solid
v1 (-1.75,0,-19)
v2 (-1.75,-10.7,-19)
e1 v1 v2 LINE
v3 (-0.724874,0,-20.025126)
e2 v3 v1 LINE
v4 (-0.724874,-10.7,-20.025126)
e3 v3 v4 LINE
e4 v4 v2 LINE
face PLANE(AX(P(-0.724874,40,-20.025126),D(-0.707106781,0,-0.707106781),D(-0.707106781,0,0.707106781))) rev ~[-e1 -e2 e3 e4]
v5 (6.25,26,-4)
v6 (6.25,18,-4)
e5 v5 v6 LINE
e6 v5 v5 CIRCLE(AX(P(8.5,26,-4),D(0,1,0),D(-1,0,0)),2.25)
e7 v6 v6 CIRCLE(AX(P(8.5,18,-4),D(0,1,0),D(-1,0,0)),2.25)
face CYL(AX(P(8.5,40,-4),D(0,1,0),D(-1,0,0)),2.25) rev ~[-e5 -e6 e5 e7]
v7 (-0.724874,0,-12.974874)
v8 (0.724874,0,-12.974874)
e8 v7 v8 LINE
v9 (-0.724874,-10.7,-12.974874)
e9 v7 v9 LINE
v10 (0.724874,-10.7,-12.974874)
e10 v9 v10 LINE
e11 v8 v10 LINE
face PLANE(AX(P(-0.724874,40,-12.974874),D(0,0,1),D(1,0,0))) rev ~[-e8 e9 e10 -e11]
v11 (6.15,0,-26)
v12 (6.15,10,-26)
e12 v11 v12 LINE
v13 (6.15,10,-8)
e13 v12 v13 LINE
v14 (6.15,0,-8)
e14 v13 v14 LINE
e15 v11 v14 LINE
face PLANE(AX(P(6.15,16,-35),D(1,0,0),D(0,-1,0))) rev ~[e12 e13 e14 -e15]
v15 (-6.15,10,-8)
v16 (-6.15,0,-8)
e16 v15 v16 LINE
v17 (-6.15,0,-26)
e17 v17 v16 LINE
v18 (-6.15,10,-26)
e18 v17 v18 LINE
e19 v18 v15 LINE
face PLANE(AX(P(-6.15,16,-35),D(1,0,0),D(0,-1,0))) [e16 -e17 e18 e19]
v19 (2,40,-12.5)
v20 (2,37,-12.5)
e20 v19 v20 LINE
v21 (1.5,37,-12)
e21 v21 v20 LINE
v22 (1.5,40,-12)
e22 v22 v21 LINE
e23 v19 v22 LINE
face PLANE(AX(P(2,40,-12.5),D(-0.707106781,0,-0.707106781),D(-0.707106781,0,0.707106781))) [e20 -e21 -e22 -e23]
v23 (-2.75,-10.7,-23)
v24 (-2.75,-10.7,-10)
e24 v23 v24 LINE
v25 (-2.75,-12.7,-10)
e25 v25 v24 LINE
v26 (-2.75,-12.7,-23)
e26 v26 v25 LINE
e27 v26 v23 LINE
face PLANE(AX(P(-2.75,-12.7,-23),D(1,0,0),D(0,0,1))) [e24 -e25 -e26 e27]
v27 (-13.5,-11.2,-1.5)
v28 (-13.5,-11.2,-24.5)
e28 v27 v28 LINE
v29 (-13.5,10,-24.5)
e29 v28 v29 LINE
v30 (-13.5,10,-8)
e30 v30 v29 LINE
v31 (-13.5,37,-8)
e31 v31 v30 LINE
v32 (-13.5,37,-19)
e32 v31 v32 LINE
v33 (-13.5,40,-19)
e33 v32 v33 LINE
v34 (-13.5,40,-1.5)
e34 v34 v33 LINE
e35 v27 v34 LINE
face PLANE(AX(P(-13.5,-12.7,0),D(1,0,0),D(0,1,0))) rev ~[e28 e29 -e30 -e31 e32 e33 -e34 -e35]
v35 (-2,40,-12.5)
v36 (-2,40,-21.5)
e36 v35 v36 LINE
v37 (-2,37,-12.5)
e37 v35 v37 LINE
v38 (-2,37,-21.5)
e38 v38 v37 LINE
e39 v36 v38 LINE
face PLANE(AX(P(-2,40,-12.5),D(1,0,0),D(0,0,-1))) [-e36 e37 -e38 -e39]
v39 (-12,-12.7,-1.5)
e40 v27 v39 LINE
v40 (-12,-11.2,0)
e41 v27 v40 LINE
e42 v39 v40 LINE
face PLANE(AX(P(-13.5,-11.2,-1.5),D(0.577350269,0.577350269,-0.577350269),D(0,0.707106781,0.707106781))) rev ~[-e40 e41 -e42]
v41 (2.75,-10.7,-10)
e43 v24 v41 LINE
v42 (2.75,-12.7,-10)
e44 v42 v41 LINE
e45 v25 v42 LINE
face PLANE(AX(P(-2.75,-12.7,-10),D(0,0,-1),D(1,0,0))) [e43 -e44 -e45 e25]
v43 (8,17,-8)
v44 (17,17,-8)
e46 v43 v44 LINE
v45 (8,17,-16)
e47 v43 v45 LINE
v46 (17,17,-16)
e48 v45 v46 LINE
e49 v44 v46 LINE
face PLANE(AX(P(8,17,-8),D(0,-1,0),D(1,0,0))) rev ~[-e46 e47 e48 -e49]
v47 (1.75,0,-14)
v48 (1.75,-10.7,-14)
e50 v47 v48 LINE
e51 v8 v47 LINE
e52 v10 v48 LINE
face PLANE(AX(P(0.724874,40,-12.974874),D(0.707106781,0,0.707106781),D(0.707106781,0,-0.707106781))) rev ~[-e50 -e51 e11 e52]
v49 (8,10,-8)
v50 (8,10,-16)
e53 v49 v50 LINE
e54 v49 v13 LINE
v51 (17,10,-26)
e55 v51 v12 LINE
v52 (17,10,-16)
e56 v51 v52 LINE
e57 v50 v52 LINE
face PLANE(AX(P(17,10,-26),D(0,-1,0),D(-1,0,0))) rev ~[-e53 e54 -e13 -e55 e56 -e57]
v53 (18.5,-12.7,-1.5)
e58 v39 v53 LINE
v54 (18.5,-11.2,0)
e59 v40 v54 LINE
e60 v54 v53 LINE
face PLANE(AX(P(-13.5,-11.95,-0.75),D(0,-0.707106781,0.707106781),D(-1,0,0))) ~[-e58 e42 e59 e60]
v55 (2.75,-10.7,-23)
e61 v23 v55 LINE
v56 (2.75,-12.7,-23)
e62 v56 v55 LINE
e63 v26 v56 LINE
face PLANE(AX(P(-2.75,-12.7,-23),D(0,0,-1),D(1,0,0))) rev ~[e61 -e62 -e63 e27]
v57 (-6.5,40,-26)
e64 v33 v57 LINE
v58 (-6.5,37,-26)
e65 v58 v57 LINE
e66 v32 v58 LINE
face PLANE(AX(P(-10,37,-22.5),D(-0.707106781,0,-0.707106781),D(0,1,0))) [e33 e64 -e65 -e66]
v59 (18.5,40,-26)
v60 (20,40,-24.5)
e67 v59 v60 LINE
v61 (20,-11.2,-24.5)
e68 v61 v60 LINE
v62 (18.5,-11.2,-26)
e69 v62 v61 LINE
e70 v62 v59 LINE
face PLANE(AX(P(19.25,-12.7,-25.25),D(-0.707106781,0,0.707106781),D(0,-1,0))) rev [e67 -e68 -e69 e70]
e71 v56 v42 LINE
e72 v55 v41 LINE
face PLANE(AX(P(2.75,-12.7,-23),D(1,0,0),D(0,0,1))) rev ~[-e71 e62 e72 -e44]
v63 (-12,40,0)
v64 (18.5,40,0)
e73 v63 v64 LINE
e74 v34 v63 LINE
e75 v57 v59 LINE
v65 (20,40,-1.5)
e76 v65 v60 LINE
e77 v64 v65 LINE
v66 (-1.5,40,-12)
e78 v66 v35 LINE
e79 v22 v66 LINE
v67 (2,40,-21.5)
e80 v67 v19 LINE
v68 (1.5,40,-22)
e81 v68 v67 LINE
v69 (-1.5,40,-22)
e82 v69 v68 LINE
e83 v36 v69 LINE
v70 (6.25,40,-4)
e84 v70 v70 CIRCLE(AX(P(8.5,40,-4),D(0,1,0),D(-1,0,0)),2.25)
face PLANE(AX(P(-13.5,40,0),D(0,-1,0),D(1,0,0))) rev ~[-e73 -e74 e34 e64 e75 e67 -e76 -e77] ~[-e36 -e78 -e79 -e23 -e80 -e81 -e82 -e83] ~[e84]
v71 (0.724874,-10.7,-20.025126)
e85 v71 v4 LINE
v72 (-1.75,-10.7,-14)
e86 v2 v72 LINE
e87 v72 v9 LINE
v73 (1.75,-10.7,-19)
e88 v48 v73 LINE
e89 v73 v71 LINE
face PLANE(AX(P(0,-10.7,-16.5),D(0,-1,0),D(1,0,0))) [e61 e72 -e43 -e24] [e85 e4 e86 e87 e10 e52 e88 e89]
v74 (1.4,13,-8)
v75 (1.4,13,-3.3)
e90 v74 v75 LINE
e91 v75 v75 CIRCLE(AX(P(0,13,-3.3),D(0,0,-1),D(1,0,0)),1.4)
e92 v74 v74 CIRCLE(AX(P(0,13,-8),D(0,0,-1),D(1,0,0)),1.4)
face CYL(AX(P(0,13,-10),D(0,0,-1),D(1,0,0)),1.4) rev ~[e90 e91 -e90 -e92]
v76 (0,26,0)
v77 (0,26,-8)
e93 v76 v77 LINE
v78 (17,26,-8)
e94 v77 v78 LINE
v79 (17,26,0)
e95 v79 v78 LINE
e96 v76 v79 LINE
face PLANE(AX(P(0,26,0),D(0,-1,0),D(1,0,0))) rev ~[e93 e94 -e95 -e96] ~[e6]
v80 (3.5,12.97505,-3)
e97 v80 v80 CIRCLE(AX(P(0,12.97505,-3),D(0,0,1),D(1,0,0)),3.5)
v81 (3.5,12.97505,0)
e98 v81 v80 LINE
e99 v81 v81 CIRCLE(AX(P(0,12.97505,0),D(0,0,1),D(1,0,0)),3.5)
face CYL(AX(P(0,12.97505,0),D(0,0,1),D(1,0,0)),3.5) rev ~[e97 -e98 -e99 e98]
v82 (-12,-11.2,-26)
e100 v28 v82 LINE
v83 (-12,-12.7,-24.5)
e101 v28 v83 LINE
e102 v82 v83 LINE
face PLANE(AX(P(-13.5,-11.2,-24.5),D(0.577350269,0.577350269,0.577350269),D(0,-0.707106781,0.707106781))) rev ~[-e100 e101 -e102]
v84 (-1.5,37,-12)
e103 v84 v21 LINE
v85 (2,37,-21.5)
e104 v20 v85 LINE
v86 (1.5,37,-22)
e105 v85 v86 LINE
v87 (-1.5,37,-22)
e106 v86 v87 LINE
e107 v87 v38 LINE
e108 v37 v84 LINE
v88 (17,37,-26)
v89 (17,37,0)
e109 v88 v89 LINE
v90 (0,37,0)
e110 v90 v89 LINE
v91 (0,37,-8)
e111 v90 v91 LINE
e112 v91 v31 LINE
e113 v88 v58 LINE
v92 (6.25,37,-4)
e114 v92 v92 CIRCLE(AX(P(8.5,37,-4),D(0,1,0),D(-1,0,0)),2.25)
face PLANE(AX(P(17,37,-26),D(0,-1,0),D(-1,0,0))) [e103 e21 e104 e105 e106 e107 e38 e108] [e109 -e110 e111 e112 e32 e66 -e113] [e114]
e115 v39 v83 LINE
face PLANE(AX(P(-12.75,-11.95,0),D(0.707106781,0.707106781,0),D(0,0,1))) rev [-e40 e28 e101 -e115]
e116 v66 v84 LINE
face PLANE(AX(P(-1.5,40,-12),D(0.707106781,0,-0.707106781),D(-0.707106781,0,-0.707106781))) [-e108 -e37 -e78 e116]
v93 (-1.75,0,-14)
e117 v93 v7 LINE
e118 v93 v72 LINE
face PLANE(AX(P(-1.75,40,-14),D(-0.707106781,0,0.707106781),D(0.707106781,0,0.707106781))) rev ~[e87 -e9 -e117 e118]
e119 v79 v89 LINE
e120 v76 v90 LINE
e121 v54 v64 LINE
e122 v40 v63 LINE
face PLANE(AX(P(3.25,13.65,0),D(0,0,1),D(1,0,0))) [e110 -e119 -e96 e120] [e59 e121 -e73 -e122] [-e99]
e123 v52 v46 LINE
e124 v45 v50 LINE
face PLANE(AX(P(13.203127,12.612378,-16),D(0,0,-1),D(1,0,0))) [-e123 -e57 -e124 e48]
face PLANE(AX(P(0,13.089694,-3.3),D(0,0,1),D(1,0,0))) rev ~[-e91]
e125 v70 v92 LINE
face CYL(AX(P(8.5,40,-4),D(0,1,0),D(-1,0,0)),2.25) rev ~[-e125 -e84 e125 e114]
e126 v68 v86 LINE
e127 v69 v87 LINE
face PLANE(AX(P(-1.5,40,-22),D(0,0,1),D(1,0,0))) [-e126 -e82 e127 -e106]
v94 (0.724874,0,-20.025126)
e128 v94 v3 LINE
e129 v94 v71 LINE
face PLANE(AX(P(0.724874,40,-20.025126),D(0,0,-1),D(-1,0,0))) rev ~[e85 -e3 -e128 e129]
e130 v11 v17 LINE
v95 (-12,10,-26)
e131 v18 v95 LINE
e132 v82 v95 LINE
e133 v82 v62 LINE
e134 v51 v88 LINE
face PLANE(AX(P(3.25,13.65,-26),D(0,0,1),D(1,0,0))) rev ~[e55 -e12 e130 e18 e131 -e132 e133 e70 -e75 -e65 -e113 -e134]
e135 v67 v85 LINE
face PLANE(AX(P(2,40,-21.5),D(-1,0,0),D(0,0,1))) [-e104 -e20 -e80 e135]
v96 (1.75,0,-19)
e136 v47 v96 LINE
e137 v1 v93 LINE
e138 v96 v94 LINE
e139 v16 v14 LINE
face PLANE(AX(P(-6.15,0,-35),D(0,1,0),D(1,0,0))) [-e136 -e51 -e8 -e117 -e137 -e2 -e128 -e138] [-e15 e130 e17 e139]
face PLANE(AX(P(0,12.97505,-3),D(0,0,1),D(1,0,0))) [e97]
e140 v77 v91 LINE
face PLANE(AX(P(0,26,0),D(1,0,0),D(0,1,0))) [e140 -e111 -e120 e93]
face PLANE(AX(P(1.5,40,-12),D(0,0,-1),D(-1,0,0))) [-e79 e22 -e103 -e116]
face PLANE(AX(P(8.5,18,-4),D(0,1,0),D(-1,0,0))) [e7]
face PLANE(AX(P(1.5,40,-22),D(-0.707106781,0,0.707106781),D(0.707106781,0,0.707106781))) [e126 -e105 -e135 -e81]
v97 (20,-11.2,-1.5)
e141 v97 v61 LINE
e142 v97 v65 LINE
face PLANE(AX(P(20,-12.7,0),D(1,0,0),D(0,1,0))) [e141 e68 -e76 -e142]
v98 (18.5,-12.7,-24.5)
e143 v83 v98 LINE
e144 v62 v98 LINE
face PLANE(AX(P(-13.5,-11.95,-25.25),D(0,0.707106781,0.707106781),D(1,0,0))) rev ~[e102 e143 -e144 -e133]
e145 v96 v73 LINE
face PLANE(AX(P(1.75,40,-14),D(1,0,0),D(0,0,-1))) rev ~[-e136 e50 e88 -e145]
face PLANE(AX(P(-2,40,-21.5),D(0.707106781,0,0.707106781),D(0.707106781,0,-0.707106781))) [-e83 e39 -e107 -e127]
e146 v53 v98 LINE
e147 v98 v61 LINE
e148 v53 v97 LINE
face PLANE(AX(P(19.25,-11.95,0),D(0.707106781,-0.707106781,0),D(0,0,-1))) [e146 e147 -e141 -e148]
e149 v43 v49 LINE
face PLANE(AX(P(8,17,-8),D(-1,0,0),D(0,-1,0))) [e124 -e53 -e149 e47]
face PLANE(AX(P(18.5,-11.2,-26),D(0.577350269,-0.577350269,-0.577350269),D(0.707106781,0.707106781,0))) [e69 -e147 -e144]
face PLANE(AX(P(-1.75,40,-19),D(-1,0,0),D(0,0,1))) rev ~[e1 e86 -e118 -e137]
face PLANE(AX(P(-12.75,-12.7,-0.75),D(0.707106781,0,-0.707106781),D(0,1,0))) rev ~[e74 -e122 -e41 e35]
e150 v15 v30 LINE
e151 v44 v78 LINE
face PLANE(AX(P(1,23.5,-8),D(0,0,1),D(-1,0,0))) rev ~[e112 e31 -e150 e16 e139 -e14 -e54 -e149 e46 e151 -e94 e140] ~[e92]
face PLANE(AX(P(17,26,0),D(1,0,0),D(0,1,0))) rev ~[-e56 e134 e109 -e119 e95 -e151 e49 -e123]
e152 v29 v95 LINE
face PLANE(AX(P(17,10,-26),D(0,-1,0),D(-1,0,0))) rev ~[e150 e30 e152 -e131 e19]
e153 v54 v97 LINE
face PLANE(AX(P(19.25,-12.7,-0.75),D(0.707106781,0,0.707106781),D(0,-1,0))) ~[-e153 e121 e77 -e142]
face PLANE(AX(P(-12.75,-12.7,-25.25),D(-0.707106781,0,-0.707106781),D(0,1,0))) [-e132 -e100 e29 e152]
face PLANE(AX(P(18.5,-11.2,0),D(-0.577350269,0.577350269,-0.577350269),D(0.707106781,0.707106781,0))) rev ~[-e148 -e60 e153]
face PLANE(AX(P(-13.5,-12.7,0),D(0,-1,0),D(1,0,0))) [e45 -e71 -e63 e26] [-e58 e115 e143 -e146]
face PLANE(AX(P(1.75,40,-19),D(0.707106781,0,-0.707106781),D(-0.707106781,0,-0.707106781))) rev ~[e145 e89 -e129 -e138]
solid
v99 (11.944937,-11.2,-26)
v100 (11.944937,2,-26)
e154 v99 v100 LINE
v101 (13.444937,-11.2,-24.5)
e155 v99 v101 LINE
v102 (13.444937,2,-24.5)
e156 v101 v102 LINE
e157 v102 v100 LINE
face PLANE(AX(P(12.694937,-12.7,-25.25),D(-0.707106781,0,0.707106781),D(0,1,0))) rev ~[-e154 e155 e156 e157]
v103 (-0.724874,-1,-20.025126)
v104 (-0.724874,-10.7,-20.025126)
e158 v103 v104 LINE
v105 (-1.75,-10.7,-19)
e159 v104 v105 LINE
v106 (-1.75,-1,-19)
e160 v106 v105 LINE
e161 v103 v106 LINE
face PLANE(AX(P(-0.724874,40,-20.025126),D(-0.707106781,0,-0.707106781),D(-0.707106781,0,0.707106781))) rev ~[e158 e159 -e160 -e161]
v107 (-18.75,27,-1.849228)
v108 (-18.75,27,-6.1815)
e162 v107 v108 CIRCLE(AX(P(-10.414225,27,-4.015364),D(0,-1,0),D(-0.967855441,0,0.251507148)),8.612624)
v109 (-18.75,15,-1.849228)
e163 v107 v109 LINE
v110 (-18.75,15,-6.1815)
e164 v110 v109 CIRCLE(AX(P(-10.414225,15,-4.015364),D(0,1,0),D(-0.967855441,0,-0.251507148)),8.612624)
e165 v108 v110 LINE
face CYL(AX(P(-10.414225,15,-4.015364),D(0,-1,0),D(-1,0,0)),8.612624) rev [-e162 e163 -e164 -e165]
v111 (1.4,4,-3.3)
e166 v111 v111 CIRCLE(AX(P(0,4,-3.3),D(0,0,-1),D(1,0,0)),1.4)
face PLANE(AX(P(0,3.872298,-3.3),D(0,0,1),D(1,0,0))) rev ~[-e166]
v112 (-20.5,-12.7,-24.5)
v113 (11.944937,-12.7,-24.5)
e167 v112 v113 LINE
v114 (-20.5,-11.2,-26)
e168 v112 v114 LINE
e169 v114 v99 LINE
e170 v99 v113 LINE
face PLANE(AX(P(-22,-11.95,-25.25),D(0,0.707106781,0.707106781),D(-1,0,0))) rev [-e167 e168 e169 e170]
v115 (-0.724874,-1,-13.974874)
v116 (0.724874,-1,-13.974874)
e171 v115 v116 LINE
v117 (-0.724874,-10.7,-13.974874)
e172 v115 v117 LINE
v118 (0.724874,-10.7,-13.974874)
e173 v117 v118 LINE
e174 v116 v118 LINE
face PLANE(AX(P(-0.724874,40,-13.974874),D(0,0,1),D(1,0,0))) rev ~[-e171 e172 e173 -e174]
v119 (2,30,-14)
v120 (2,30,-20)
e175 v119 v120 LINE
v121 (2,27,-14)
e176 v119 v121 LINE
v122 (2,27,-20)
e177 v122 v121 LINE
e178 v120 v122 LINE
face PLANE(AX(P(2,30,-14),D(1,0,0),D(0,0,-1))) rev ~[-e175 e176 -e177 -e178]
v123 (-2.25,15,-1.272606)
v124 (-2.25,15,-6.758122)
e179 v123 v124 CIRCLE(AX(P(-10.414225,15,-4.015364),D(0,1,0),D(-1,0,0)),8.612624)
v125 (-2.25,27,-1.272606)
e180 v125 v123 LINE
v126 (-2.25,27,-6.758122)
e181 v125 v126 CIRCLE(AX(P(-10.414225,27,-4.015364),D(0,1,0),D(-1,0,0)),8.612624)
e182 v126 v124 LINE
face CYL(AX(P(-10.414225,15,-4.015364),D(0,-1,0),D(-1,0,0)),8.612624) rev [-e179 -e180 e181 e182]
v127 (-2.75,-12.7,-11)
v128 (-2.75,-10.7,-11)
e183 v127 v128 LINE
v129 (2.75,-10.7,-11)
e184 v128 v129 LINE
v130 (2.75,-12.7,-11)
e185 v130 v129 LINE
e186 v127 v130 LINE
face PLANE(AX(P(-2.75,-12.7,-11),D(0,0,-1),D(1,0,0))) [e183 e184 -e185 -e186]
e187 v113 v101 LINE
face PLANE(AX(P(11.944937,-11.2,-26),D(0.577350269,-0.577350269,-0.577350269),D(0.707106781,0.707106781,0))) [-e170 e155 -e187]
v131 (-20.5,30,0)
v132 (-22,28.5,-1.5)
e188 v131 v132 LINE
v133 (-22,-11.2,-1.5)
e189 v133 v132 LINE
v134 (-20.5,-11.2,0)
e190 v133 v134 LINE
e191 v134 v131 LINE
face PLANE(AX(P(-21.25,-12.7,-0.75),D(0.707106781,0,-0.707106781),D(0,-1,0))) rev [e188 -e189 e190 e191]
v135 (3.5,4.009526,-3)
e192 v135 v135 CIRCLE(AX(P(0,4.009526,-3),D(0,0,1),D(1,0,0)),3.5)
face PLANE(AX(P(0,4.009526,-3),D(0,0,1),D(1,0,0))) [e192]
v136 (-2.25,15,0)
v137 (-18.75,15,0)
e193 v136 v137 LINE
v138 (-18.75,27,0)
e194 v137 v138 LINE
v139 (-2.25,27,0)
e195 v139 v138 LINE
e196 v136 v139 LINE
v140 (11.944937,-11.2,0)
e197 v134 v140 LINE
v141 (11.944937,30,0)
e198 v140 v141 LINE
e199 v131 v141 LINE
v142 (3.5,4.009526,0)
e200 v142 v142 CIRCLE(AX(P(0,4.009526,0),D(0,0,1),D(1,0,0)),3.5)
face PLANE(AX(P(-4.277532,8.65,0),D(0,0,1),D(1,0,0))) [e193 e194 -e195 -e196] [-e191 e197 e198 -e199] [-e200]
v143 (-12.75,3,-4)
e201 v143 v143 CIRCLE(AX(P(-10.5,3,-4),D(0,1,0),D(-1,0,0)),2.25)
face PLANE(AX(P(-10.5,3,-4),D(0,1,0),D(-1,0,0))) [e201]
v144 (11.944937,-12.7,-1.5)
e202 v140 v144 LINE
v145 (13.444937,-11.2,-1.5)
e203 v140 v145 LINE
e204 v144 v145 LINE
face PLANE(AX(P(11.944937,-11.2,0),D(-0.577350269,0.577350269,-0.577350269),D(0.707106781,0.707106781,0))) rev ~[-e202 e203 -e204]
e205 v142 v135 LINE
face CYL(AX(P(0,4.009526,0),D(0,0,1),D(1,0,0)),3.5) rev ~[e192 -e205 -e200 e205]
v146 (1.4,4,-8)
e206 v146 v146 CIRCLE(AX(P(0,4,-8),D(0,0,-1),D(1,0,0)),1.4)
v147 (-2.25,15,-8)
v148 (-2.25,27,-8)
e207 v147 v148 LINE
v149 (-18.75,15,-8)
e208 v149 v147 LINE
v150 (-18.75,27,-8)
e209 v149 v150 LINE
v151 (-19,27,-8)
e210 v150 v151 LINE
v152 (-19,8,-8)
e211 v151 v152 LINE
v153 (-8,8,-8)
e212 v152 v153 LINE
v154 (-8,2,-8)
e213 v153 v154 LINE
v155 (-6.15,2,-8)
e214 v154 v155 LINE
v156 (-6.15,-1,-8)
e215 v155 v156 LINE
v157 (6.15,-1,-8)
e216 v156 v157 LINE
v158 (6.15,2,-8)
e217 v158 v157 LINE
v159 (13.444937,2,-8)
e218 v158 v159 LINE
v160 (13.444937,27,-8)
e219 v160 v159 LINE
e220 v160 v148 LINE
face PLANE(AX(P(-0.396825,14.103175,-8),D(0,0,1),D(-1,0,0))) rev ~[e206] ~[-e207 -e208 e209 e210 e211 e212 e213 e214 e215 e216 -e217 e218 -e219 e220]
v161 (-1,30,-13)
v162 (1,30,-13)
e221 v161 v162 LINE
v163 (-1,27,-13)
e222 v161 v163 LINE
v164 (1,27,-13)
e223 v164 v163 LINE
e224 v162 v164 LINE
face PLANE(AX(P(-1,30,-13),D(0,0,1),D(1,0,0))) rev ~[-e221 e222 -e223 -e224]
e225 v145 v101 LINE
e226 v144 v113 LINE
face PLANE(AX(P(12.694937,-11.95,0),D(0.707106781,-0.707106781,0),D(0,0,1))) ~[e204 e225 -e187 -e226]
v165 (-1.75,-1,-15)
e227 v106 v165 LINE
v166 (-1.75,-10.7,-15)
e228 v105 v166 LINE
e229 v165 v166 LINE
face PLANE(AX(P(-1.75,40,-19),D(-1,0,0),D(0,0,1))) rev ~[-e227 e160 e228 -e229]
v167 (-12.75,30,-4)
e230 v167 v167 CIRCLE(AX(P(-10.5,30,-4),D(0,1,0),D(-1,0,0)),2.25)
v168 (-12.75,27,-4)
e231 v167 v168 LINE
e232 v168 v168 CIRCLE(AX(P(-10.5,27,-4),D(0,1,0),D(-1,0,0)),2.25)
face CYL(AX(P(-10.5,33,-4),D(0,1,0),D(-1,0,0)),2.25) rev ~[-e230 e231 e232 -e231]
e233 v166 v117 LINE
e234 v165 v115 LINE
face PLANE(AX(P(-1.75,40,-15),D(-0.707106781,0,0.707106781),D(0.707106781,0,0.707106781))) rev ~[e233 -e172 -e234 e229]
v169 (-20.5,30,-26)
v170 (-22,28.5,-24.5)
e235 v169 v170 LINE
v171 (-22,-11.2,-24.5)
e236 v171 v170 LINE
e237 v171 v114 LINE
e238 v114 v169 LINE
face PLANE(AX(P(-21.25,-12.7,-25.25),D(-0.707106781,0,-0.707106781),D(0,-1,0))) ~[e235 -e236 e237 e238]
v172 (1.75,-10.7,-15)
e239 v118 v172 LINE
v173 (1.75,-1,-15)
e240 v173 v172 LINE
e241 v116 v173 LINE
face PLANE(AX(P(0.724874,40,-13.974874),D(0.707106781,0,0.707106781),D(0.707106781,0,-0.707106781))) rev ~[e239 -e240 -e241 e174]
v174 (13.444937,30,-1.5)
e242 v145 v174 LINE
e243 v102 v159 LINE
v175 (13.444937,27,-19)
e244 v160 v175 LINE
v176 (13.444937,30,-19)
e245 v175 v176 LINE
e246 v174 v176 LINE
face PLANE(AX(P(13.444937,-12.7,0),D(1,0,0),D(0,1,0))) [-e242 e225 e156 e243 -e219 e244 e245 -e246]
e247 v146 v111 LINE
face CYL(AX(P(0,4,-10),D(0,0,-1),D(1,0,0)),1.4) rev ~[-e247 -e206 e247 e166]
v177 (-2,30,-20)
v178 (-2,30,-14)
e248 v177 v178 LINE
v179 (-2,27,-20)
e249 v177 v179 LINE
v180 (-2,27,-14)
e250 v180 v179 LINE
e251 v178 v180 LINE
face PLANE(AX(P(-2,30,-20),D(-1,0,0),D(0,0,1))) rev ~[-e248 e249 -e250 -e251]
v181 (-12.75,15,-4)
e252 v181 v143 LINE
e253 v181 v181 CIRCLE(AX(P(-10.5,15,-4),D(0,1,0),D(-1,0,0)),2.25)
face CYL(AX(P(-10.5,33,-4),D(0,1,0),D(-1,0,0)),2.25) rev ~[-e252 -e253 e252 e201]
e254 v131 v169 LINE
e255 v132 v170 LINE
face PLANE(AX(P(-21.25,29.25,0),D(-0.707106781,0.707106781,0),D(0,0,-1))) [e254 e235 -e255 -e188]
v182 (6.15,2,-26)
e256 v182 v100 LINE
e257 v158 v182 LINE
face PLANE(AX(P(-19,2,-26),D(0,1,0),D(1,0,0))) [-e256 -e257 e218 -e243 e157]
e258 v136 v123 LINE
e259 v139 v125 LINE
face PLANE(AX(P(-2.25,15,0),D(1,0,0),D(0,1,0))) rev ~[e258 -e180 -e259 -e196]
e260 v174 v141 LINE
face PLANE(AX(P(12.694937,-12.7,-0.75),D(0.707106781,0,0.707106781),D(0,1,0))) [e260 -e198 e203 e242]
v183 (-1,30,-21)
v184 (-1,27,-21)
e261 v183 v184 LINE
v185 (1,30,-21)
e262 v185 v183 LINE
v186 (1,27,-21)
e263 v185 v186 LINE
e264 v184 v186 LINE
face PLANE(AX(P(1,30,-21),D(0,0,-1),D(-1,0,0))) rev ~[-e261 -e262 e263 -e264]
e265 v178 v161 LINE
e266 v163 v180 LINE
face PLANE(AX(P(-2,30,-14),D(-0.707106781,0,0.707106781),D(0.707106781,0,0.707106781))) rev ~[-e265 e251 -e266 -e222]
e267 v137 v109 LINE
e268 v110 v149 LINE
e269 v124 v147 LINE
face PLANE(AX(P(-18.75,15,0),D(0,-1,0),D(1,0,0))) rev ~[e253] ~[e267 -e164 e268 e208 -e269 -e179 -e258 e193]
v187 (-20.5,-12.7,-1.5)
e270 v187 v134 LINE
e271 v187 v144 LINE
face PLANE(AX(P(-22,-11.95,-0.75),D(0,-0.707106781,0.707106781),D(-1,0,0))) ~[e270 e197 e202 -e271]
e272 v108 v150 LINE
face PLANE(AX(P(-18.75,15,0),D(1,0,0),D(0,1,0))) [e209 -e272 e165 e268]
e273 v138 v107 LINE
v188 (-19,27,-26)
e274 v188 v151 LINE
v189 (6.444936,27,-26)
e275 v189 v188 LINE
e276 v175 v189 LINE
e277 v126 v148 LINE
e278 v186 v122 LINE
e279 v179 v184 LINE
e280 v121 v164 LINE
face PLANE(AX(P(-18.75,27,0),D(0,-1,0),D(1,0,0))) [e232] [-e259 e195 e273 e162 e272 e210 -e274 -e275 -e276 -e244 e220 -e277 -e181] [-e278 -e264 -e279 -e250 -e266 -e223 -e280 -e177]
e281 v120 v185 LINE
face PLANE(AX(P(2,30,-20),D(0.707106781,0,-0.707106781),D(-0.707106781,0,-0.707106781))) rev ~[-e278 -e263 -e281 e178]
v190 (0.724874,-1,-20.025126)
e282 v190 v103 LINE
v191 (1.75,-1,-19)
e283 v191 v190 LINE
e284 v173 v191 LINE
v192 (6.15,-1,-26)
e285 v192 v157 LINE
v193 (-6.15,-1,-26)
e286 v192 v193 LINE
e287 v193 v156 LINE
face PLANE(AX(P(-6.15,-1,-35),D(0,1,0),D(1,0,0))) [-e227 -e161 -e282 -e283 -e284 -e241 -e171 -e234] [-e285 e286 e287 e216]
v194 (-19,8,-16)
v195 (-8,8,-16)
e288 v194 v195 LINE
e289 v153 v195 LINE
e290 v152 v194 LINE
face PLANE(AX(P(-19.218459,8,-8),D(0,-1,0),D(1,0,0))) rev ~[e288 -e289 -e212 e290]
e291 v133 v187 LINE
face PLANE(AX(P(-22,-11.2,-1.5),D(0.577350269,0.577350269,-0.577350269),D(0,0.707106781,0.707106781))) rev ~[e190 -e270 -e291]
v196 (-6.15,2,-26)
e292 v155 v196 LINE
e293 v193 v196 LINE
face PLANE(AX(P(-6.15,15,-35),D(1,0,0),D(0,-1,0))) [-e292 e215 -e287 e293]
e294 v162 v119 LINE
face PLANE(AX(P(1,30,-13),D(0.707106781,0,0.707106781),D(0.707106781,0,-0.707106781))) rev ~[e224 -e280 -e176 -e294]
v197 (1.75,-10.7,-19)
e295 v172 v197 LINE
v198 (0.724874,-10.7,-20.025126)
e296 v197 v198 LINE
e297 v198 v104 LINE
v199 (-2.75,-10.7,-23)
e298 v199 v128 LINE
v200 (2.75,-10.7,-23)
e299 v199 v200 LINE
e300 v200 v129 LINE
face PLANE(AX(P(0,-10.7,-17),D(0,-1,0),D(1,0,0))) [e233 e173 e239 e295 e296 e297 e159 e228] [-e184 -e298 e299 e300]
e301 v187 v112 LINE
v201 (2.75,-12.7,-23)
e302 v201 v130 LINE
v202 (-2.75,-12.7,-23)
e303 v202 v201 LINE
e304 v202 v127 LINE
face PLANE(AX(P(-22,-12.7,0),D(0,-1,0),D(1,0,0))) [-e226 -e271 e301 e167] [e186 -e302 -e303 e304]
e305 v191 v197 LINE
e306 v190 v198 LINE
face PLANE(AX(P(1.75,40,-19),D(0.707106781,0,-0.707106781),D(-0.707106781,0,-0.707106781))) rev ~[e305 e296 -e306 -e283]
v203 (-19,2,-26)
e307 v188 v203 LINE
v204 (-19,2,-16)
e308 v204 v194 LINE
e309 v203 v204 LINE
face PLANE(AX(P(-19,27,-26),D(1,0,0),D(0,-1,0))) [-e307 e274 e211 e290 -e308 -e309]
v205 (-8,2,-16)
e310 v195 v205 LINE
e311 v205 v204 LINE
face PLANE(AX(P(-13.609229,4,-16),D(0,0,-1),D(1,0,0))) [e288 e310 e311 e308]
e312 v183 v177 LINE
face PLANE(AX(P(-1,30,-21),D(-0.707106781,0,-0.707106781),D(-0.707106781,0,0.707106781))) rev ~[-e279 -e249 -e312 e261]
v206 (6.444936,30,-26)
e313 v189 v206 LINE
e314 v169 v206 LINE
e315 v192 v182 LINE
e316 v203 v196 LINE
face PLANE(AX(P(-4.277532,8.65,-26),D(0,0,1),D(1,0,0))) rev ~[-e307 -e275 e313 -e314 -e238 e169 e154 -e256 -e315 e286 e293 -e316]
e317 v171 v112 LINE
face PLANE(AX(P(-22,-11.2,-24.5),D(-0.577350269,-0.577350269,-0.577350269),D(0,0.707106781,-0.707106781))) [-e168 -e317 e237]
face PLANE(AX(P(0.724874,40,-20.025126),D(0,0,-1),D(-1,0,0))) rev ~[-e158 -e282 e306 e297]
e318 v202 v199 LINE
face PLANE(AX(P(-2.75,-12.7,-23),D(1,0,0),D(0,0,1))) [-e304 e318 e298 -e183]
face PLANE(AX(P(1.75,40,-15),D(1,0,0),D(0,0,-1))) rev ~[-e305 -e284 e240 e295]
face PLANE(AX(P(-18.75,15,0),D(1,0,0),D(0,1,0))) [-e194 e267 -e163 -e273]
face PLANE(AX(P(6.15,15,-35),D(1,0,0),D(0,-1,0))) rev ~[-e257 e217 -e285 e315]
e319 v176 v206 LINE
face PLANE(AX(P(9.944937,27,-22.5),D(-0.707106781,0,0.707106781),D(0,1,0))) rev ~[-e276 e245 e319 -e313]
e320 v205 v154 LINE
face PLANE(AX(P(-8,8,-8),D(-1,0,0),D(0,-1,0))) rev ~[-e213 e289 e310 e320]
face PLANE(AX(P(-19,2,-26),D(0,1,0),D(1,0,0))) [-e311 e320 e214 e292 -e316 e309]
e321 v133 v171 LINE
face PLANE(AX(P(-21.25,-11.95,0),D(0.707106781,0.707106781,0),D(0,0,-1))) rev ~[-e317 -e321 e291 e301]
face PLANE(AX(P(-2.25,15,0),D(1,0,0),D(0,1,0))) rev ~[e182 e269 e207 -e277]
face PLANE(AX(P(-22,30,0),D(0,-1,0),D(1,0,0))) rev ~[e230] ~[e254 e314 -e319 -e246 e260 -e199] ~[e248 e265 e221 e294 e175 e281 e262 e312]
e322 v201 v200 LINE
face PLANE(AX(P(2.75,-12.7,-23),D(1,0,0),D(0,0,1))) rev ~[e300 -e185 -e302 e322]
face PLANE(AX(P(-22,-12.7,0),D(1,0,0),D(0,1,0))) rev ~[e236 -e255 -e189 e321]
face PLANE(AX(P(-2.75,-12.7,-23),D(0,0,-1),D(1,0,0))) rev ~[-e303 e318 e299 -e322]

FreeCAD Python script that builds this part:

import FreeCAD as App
import Part
import Sketcher
from FreeCAD import Vector
Q = App.Units.Quantity


def edges_at(feature, points):
    """Names of the edges that pass closest to the given points."""
    edges = feature.Shape.Edges
    near = lambda p: min(range(len(edges)), key=lambda i: edges[i].distToShape(Part.Vertex(*p))[0])
    return sorted({f"Edge{near(p) + 1}" for p in points})


def add_polygon(sketch, points):
    """Adds a closed chain of lines whose ends are joined by coincident constraints."""
    first, n = sketch.GeometryCount, len(points)
    for a, b in zip(points, points[1:] + points[:1]):
        sketch.addGeometry(Part.LineSegment(App.Vector(*a, 0), App.Vector(*b, 0)), False)
    for i in range(n):
        sketch.addConstraint(Sketcher.Constraint("Coincident", first + i, 2, first + (i + 1) % n, 1))

doc = App.newDocument("Part")
body = doc.addObject("PartDesign::Body", "Body")

sketch1 = body.newObject("Sketcher::SketchObject", "Sketch")
sketch1.AttachmentSupport = (doc.getObject("XY_Plane"), [""])
sketch1.MapMode = "FlatFace"
add_polygon(sketch1, [(-14, 40), (-14, -13), (20, -13), (20, 40)])
sketch1.addConstraint([
    Sketcher.Constraint("Vertical", 0),
    Sketcher.Constraint("Horizontal", 1),
    Sketcher.Constraint("Vertical", 2),
    Sketcher.Constraint("Horizontal", 3),
    Sketcher.Constraint("DistanceX", 1, 1, 1, 2, Q("33.5 mm")),
    Sketcher.Constraint("DistanceY", 0, 2, 0, 1, Q("52.7 mm")),
    Sketcher.Constraint("DistanceX", -1, 1, 1, 2, Q("20 mm")),
    Sketcher.Constraint("DistanceY", -1, 1, 2, 2, Q("40 mm")),
])
pad1 = body.newObject("PartDesign::Pad", "Pad")
pad1.Profile = sketch1
pad1.Length = 26
pad1.Reversed = True

sketch2 = body.newObject("Sketcher::SketchObject", "Sketch001")
sketch2.AttachmentSupport = (doc.getObject("XY_Plane"), [""])
sketch2.MapMode = "FlatFace"
sketch2.AttachmentOffset = App.Placement(Vector(0, 0, -26), App.Rotation())
add_polygon(sketch2, [(17, 10), (-15, 10), (-15, 37), (17, 37)])
sketch2.addConstraint([
    Sketcher.Constraint("Horizontal", 0),
    Sketcher.Constraint("Vertical", 1),
    Sketcher.Constraint("Horizontal", 2),
    Sketcher.Constraint("Vertical", 3),
    Sketcher.Constraint("DistanceX", 0, 2, 0, 1, Q("32 mm")),
    Sketcher.Constraint("DistanceY", 1, 1, 1, 2, Q("27 mm")),
    Sketcher.Constraint("DistanceX", 0, 2, -1, 1, Q("15 mm")),
    Sketcher.Constraint("DistanceY", -1, 1, 0, 2, Q("10 mm")),
])
pocket1 = body.newObject("PartDesign::Pocket", "Pocket")
pocket1.Profile = sketch2
pocket1.Length = 18
pocket1.Reversed = True

sketch3 = body.newObject("Sketcher::SketchObject", "Sketch002")
sketch3.AttachmentSupport = (doc.getObject("XY_Plane"), [""])
sketch3.MapMode = "FlatFace"
add_polygon(sketch3, [(0, 37), (0, 26), (17, 26), (17, 37)])
sketch3.addConstraint([
    Sketcher.Constraint("Vertical", 0),
    Sketcher.Constraint("Horizontal", 1),
    Sketcher.Constraint("Vertical", 2),
    Sketcher.Constraint("Horizontal", 3),
    Sketcher.Constraint("PointOnObject", 0, 2, -2),
    Sketcher.Constraint("DistanceX", 1, 1, 1, 2, Q("17 mm")),
    Sketcher.Constraint("DistanceY", 0, 2, 0, 1, Q("11 mm")),
    Sketcher.Constraint("DistanceY", -1, 1, 0, 2, Q("26 mm")),
])
pocket2 = body.newObject("PartDesign::Pocket", "Pocket001")
pocket2.Profile = sketch3
pocket2.Type = "ThroughAll"

sketch4 = body.newObject("Sketcher::SketchObject", "Sketch003")
sketch4.AttachmentSupport = (doc.getObject("XY_Plane"), [""])
sketch4.MapMode = "FlatFace"
sketch4.AttachmentOffset = App.Placement(Vector(0, 0, -35), App.Rotation())
add_polygon(sketch4, [(-6, 0), (-6, 16), (6, 16), (6, 0)])
sketch4.addConstraint([
    Sketcher.Constraint("Vertical", 0),
    Sketcher.Constraint("Horizontal", 1),
    Sketcher.Constraint("Vertical", 2),
    Sketcher.Constraint("Horizontal", 3),
    Sketcher.Constraint("Symmetric", 2, 2, 3, 2, -1, 1),
    Sketcher.Constraint("DistanceY", 0, 1, 0, 2, Q("16 mm")),
    Sketcher.Constraint("DistanceX", 1, 1, 1, 2, Q("12.3 mm")),
])
pocket3 = body.newObject("PartDesign::Pocket", "Pocket002")
pocket3.Profile = sketch4
pocket3.Length = 27
pocket3.Reversed = True

sketch5 = body.newObject("Sketcher::SketchObject", "Sketch004")
sketch5.AttachmentSupport = (doc.getObject("XZ_Plane"), [""])
sketch5.MapMode = "FlatFace"
sketch5.AttachmentOffset = App.Placement(Vector(0, 0, -40), App.Rotation())
add_polygon(sketch5, [(1.8, -14), (1.8, -19), (0.7, -20), (-0.7, -20), (-1.8, -19), (-1.8, -14), (-0.7, -13), (0.7, -13)])
sketch5.addConstraint([
    Sketcher.Constraint("Vertical", 0),
    Sketcher.Constraint("Horizontal", 2),
    Sketcher.Constraint("Vertical", 4),
    Sketcher.Constraint("Horizontal", 6),
    Sketcher.Constraint("Symmetric", 0, 2, 3, 2, -2),
    Sketcher.Constraint("Perpendicular", 1, 3),
    Sketcher.Constraint("Perpendicular", 3, 5),
    Sketcher.Constraint("Perpendicular", 5, 7),
    Sketcher.Constraint("Horizontal", 4, 2, 7, 2),
    Sketcher.Constraint("Vertical", 2, 2, 5, 2),
    Sketcher.Constraint("Vertical", 1, 2, 6, 2),
    Sketcher.Constraint("DistanceY", 0, 2, 0, 1, Q("5 mm")),
    Sketcher.Constraint("DistanceY", 0, 2, -1, 1, Q("19 mm")),
    Sketcher.Constraint("DistanceX", 3, 2, 0, 2, Q("3.5 mm")),
    Sketcher.Constraint("DistanceX", 2, 2, 2, 1, Q("1.449748 mm")),
])
pocket4 = body.newObject("PartDesign::Pocket", "Pocket003")
pocket4.Profile = sketch5
pocket4.Type = "ThroughAll"
pocket4.Reversed = True

sketch6 = body.newObject("Sketcher::SketchObject", "Sketch005")
sketch6.AttachmentSupport = (doc.getObject("XZ_Plane"), [""])
sketch6.MapMode = "FlatFace"
sketch6.AttachmentOffset = App.Placement(Vector(0, 0, 12.7), App.Rotation())
add_polygon(sketch6, [(-3, -10), (-3, -23), (3, -23), (3, -10)])
sketch6.addConstraint([
    Sketcher.Constraint("Vertical", 0),
    Sketcher.Constraint("Horizontal", 1),
    Sketcher.Constraint("Vertical", 2),
    Sketcher.Constraint("Horizontal", 3),
    Sketcher.Constraint("DistanceY", 0, 2, 0, 1, Q("13 mm")),
    Sketcher.Constraint("DistanceX", 1, 1, 1, 2, Q("5.5 mm")),
    Sketcher.Constraint("DistanceY", 0, 2, -1, 1, Q("23 mm")),
    Sketcher.Constraint("DistanceX", 0, 2, -1, 1, Q("2.75 mm")),
])
pocket5 = body.newObject("PartDesign::Pocket", "Pocket004")
pocket5.Profile = sketch6
pocket5.Length = 2

sketch7 = body.newObject("Sketcher::SketchObject", "Sketch006")
sketch7.AttachmentSupport = (doc.getObject("XZ_Plane"), [""])
sketch7.MapMode = "FlatFace"
sketch7.AttachmentOffset = App.Placement(Vector(0, 0, -40), App.Rotation())
add_polygon(sketch7, [(-1.5, -12), (1.5, -12), (2, -12.5), (2, -21.5), (1.5, -22), (-1.5, -22), (-2, -21.5), (-2, -12.5)])
sketch7.addConstraint([
    Sketcher.Constraint("Horizontal", 0),
    Sketcher.Constraint("Vertical", 2),
    Sketcher.Constraint("Horizontal", 4),
    Sketcher.Constraint("Vertical", 6),
    Sketcher.Constraint("Symmetric", 2, 2, 5, 2, -2),
    Sketcher.Constraint("Perpendicular", 1, 3),
    Sketcher.Constraint("Perpendicular", 3, 5),
    Sketcher.Constraint("Perpendicular", 5, 7),
    Sketcher.Constraint("Horizontal", 1, 2, 6, 2),
    Sketcher.Constraint("Vertical", 0, 2, 3, 2),
    Sketcher.Constraint("Vertical", 4, 2, 7, 2),
    Sketcher.Constraint("DistanceX", 0, 1, 0, 2, Q("3 mm")),
    Sketcher.Constraint("DistanceY", 2, 2, 2, 1, Q("9 mm")),
    Sketcher.Constraint("DistanceY", 0, 2, -1, 1, Q("12 mm")),
    Sketcher.Constraint("DistanceX", -1, 1, 1, 2, Q("2 mm")),
])
pocket6 = body.newObject("PartDesign::Pocket", "Pocket005")
pocket6.Profile = sketch7
pocket6.Length = 5
pocket6.Reversed = True

sketch8 = body.newObject("Sketcher::SketchObject", "Sketch007")
sketch8.AttachmentSupport = (doc.getObject("XY_Plane"), [""])
sketch8.MapMode = "FlatFace"
sketch8.AttachmentOffset = App.Placement(Vector(0, 0, -10), App.Rotation())
sketch8.addGeometry(Part.Circle(Vector(0, 13, 0), Vector(0, 0, 1), 1.4), False)
sketch8.addConstraint([
    Sketcher.Constraint("PointOnObject", 0, 3, -2),
    Sketcher.Constraint("Diameter", 0, Q("2.8 mm")),
    Sketcher.Constraint("DistanceY", -1, 1, 0, 3, Q("13 mm")),
])
pocket7 = body.newObject("PartDesign::Pocket", "Pocket006")
pocket7.Profile = sketch8
pocket7.Type = "ThroughAll"
pocket7.Reversed = True

sketch9 = body.newObject("Sketcher::SketchObject", "Sketch008")
sketch9.AttachmentSupport = (doc.getObject("XZ_Plane"), [""])
sketch9.MapMode = "FlatFace"
sketch9.AttachmentOffset = App.Placement(Vector(0, 0, -40), App.Rotation())
sketch9.addGeometry(Part.Circle(Vector(8.5, -4, 0), Vector(0, 0, 1), 2.2), False)
sketch9.addConstraint([
    Sketcher.Constraint("Diameter", 0, Q("4.5 mm")),
    Sketcher.Constraint("DistanceY", 0, 3, -1, 1, Q("4 mm")),
    Sketcher.Constraint("DistanceX", -1, 1, 0, 3, Q("8.5 mm")),
])
pocket8 = body.newObject("PartDesign::Pocket", "Pocket007")
pocket8.Profile = sketch9
pocket8.Length = 22
pocket8.Reversed = True

sketch10 = body.newObject("Sketcher::SketchObject", "Sketch009")
sketch10.AttachmentSupport = (doc.getObject("XY_Plane"), [""])
sketch10.MapMode = "FlatFace"
sketch10.AttachmentOffset = App.Placement(Vector(0, 0, -8), App.Rotation())
add_polygon(sketch10, [(8, 8), (8, 17), (18, 17), (18, 8)])
sketch10.addConstraint([
    Sketcher.Constraint("Vertical", 0),
    Sketcher.Constraint("Horizontal", 1),
    Sketcher.Constraint("Vertical", 2),
    Sketcher.Constraint("Horizontal", 3),
    Sketcher.Constraint("DistanceX", -1, 1, 0, 2, Q("8 mm")),
    Sketcher.Constraint("DistanceY", -1, 1, 0, 2, Q("17 mm")),
    Sketcher.Constraint("DistanceX", 1, 1, 1, 2, Q("10.406255 mm")),
    Sketcher.Constraint("DistanceY", 0, 1, 0, 2, Q("8.775244 mm")),
])
pad2 = body.newObject("PartDesign::Pad", "Pad001")
pad2.Profile = sketch10
pad2.Length = 8
pad2.Reversed = True
doc.recompute()

chamfer = body.newObject("PartDesign::Chamfer", "Chamfer")
chamfer.Base = (pad2, edges_at(pad2, [(-13.5, 38.5, -26)]))
chamfer.Size = 7
doc.recompute()

chamfer2 = body.newObject("PartDesign::Chamfer", "Chamfer001")
chamfer2.Base = (chamfer, edges_at(chamfer, [
    (20, -12.7, -13),
    (3.25, -12.7, -26),
    (3.25, -12.7, 0),
    (20, 13.65, 0),
    (20, 13.65, -26),
    (-13.5, -1.35, -26),
    (-13.5, -12.7, -13),
    (-13.5, 13.65, 0),
]))
chamfer2.Size = 1.5

sketch11 = body.newObject("Sketcher::SketchObject", "Sketch010")
sketch11.AttachmentSupport = (doc.getObject("XY_Plane"), [""])
sketch11.MapMode = "FlatFace"
sketch11.addGeometry(Part.Circle(Vector(0, 13, 0), Vector(0, 0, 1), 3.5), False)
sketch11.addConstraint([
    Sketcher.Constraint("PointOnObject", 0, 3, -2),
    Sketcher.Constraint("Diameter", 0, Q("7 mm")),
    Sketcher.Constraint("DistanceY", -1, 1, 0, 3, Q("12.97505 mm")),
])
pocket9 = body.newObject("PartDesign::Pocket", "Pocket008")
pocket9.Profile = sketch11
pocket9.Length = 3

sketch12 = body.newObject("Sketcher::SketchObject", "Sketch011")
sketch12.AttachmentSupport = (doc.getObject("XY_Plane"), [""])
sketch12.MapMode = "FlatFace"
sketch12.AttachmentOffset = App.Placement(Vector(0, 0, -3), App.Rotation())
sketch12.addGeometry(Part.Circle(Vector(0, 13.1, 0), Vector(0, 0, 1), 1.8), False)
sketch12.addConstraint([
    Sketcher.Constraint("PointOnObject", 0, 3, -2),
    Sketcher.Constraint("Diameter", 0, Q("3.504022 mm")),
    Sketcher.Constraint("DistanceY", -1, 1, 0, 3, Q("13.089694 mm")),
])
pad3 = body.newObject("PartDesign::Pad", "Pad002")
pad3.Profile = sketch12
pad3.Length = 0.3
pad3.Reversed = True
body2 = doc.addObject("PartDesign::Body", "Body001")

sketch13 = body2.newObject("Sketcher::SketchObject", "Sketch012")
sketch13.AttachmentSupport = (doc.getObject("XY_Plane001"), [""])
sketch13.MapMode = "FlatFace"
add_polygon(sketch13, [(-22, 30), (-22, -13), (13, -13), (13, 30)])
sketch13.addConstraint([
    Sketcher.Constraint("Vertical", 0),
    Sketcher.Constraint("Horizontal", 1),
    Sketcher.Constraint("Vertical", 2),
    Sketcher.Constraint("Horizontal", 3),
    Sketcher.Constraint("DistanceY", 0, 2, 0, 1, Q("42.7 mm")),
    Sketcher.Constraint("DistanceX", 0, 2, -1, 1, Q("22 mm")),
    Sketcher.Constraint("DistanceY", -1, 1, 2, 2, Q("30 mm")),
    Sketcher.Constraint("DistanceX", 1, 1, 1, 2, Q("35.444937 mm")),
])
pad4 = body2.newObject("PartDesign::Pad", "Pad003")
pad4.Profile = sketch13
pad4.Length = 26
pad4.Reversed = True

sketch14 = body2.newObject("Sketcher::SketchObject", "Sketch013")
sketch14.AttachmentSupport = (doc.getObject("XY_Plane001"), [""])
sketch14.MapMode = "FlatFace"
sketch14.AttachmentOffset = App.Placement(Vector(0, 0, -26), App.Rotation())
add_polygon(sketch14, [(17, 2), (-19, 2), (-19, 27), (17, 27)])
sketch14.addConstraint([
    Sketcher.Constraint("Horizontal", 0),
    Sketcher.Constraint("Vertical", 1),
    Sketcher.Constraint("Horizontal", 2),
    Sketcher.Constraint("Vertical", 3),
    Sketcher.Constraint("DistanceX", 0, 2, 0, 1, Q("36 mm")),
    Sketcher.Constraint("DistanceY", 1, 1, 1, 2, Q("25 mm")),
    Sketcher.Constraint("DistanceX", 0, 2, -1, 1, Q("19 mm")),
    Sketcher.Constraint("DistanceY", -1, 1, 0, 2, Q("2 mm")),
])
pocket10 = body2.newObject("PartDesign::Pocket", "Pocket009")
pocket10.Profile = sketch14
pocket10.Length = 18
pocket10.Reversed = True

sketch15 = body2.newObject("Sketcher::SketchObject", "Sketch014")
sketch15.AttachmentSupport = (doc.getObject("XY_Plane001"), [""])
sketch15.MapMode = "FlatFace"
add_polygon(sketch15, [(-19, 27), (-19, 15), (-2, 15), (-2, 27)])
sketch15.addConstraint([
    Sketcher.Constraint("Vertical", 0),
    Sketcher.Constraint("Horizontal", 1),
    Sketcher.Constraint("Vertical", 2),
    Sketcher.Constraint("Horizontal", 3),
    Sketcher.Constraint("DistanceY", 0, 2, 0, 1, Q("12 mm")),
    Sketcher.Constraint("DistanceX", 1, 1, 1, 2, Q("16.5 mm")),
    Sketcher.Constraint("DistanceY", -1, 1, 0, 2, Q("15 mm")),
    Sketcher.Constraint("DistanceX", 0, 2, -1, 1, Q("18.75 mm")),
])
pocket11 = body2.newObject("PartDesign::Pocket", "Pocket010")
pocket11.Profile = sketch15
pocket11.Type = "ThroughAll"

sketch16 = body2.newObject("Sketcher::SketchObject", "Sketch015")
sketch16.AttachmentSupport = (doc.getObject("XZ_Plane001"), [""])
sketch16.MapMode = "FlatFace"
sketch16.AttachmentOffset = App.Placement(Vector(0, 0, -33), App.Rotation())
sketch16.addGeometry(Part.Circle(Vector(-10.5, -4, 0), Vector(0, 0, 1), 2.2), False)
sketch16.addConstraint([
    Sketcher.Constraint("Diameter", 0, Q("4.5 mm")),
    Sketcher.Constraint("DistanceY", 0, 3, -1, 1, Q("4 mm")),
    Sketcher.Constraint("DistanceX", 0, 3, -1, 1, Q("10.5 mm")),
])
pocket12 = body2.newObject("PartDesign::Pocket", "Pocket011")
pocket12.Profile = sketch16
pocket12.Length = 30
pocket12.Reversed = True

sketch17 = body2.newObject("Sketcher::SketchObject", "Sketch016")
sketch17.AttachmentSupport = (doc.getObject("XY_Plane001"), [""])
sketch17.MapMode = "FlatFace"
sketch17.AttachmentOffset = App.Placement(Vector(0, 0, -35), App.Rotation())
add_polygon(sketch17, [(-6, -1), (-6, 15), (6, 15), (6, -1)])
sketch17.addConstraint([
    Sketcher.Constraint("Vertical", 0),
    Sketcher.Constraint("Horizontal", 1),
    Sketcher.Constraint("Vertical", 2),
    Sketcher.Constraint("Horizontal", 3),
    Sketcher.Constraint("DistanceY", 0, 1, 0, 2, Q("16 mm")),
    Sketcher.Constraint("DistanceX", 1, 1, 1, 2, Q("12.3 mm")),
    Sketcher.Constraint("DistanceY", -1, 1, 0, 2, Q("15 mm")),
    Sketcher.Constraint("DistanceX", 0, 2, -1, 1, Q("6.15 mm")),
])
pocket13 = body2.newObject("PartDesign::Pocket", "Pocket012")
pocket13.Profile = sketch17
pocket13.Length = 27
pocket13.Reversed = True

sketch18 = body2.newObject("Sketcher::SketchObject", "Sketch017")
sketch18.AttachmentSupport = (doc.getObject("XY_Plane001"), [""])
sketch18.MapMode = "FlatFace"
sketch18.AttachmentOffset = App.Placement(Vector(0, 0, -10), App.Rotation())
sketch18.addGeometry(Part.Circle(Vector(0, 4, 0), Vector(0, 0, 1), 1.4), False)
sketch18.addConstraint([
    Sketcher.Constraint("PointOnObject", 0, 3, -2),
    Sketcher.Constraint("Diameter", 0, Q("2.8 mm")),
    Sketcher.Constraint("DistanceY", -1, 1, 0, 3, Q("4 mm")),
])
pocket14 = body2.newObject("PartDesign::Pocket", "Pocket013")
pocket14.Profile = sketch18
pocket14.Type = "ThroughAll"
pocket14.Reversed = True

sketch19 = body2.newObject("Sketcher::SketchObject", "Sketch018")
sketch19.AttachmentSupport = (doc.getObject("XZ_Plane001"), [""])
sketch19.MapMode = "FlatFace"
sketch19.AttachmentOffset = App.Placement(Vector(0, 0, -40), App.Rotation())
add_polygon(sketch19, [(1.8, -15), (1.8, -19), (0.7, -20), (-0.7, -20), (-1.8, -19), (-1.8, -15), (-0.7, -14), (0.7, -14)])
sketch19.addConstraint([
    Sketcher.Constraint("Vertical", 0),
    Sketcher.Constraint("Horizontal", 2),
    Sketcher.Constraint("Vertical", 4),
    Sketcher.Constraint("Horizontal", 6),
    Sketcher.Constraint("Symmetric", 0, 2, 3, 2, -2),
    Sketcher.Constraint("Perpendicular", 1, 3),
    Sketcher.Constraint("Perpendicular", 3, 5),
    Sketcher.Constraint("Perpendicular", 5, 7),
    Sketcher.Constraint("Horizontal", 4, 2, 7, 2),
    Sketcher.Constraint("Vertical", 2, 2, 5, 2),
    Sketcher.Constraint("Vertical", 1, 2, 6, 2),
    Sketcher.Constraint("DistanceY", 0, 2, 0, 1, Q("4 mm")),
    Sketcher.Constraint("DistanceY", 0, 2, -1, 1, Q("19 mm")),
    Sketcher.Constraint("DistanceX", 3, 2, 0, 2, Q("3.5 mm")),
    Sketcher.Constraint("DistanceX", 2, 2, 2, 1, Q("1.449748 mm")),
])
pocket15 = body2.newObject("PartDesign::Pocket", "Pocket014")
pocket15.Profile = sketch19
pocket15.Type = "ThroughAll"
pocket15.Reversed = True

sketch20 = body2.newObject("Sketcher::SketchObject", "Sketch019")
sketch20.AttachmentSupport = (doc.getObject("XZ_Plane001"), [""])
sketch20.MapMode = "FlatFace"
sketch20.AttachmentOffset = App.Placement(Vector(0, 0, -30), App.Rotation())
add_polygon(sketch20, [(2, -14), (2, -20), (1, -21), (-1, -21), (-2, -20), (-2, -14), (-1, -13), (1, -13)])
sketch20.addConstraint([
    Sketcher.Constraint("Vertical", 0),
    Sketcher.Constraint("Horizontal", 2),
    Sketcher.Constraint("Vertical", 4),
    Sketcher.Constraint("Horizontal", 6),
    Sketcher.Constraint("Symmetric", 0, 2, 3, 2, -2),
    Sketcher.Constraint("Perpendicular", 1, 3),
    Sketcher.Constraint("Perpendicular", 3, 5),
    Sketcher.Constraint("Perpendicular", 5, 7),
    Sketcher.Constraint("Horizontal", 4, 2, 7, 2),
    Sketcher.Constraint("Vertical", 2, 2, 5, 2),
    Sketcher.Constraint("Vertical", 1, 2, 6, 2),
    Sketcher.Constraint("DistanceX", 2, 2, 2, 1, Q("2 mm")),
    Sketcher.Constraint("DistanceY", 0, 2, 0, 1, Q("6 mm")),
    Sketcher.Constraint("DistanceX", -1, 1, 0, 2, Q("2 mm")),
    Sketcher.Constraint("DistanceY", 0, 2, -1, 1, Q("20 mm")),
])
pocket16 = body2.newObject("PartDesign::Pocket", "Pocket015")
pocket16.Profile = sketch20
pocket16.Length = 5
pocket16.Reversed = True

sketch21 = body2.newObject("Sketcher::SketchObject", "Sketch020")
sketch21.AttachmentSupport = (doc.getObject("XY_Plane001"), [""])
sketch21.MapMode = "FlatFace"
sketch21.AttachmentOffset = App.Placement(Vector(0, 0, -8), App.Rotation())
add_polygon(sketch21, [(-19, 0), (-19, 8), (-8, 8), (-8, 0)])
sketch21.addConstraint([
    Sketcher.Constraint("Vertical", 0),
    Sketcher.Constraint("Horizontal", 1),
    Sketcher.Constraint("Vertical", 2),
    Sketcher.Constraint("Horizontal", 3),
    Sketcher.Constraint("PointOnObject", 2, 2, -1),
    Sketcher.Constraint("DistanceY", 0, 1, 0, 2, Q("8 mm")),
    Sketcher.Constraint("DistanceX", 1, 2, -1, 1, Q("8 mm")),
    Sketcher.Constraint("DistanceX", 1, 1, 1, 2, Q("11.218459 mm")),
])
pad5 = body2.newObject("PartDesign::Pad", "Pad004")
pad5.Profile = sketch21
pad5.Length = 8
pad5.Reversed = True

sketch22 = body2.newObject("Sketcher::SketchObject", "Sketch021")
sketch22.AttachmentSupport = (doc.getObject("XZ_Plane001"), [""])
sketch22.MapMode = "FlatFace"
sketch22.AttachmentOffset = App.Placement(Vector(0, 0, 12.7), App.Rotation())
add_polygon(sketch22, [(-3, -11), (-3, -23), (3, -23), (3, -11)])
sketch22.addConstraint([
    Sketcher.Constraint("Vertical", 0),
    Sketcher.Constraint("Horizontal", 1),
    Sketcher.Constraint("Vertical", 2),
    Sketcher.Constraint("Horizontal", 3),
    Sketcher.Constraint("DistanceY", 0, 2, 0, 1, Q("12 mm")),
    Sketcher.Constraint("DistanceX", 1, 1, 1, 2, Q("5.5 mm")),
    Sketcher.Constraint("DistanceY", 0, 2, -1, 1, Q("23 mm")),
    Sketcher.Constraint("DistanceX", 0, 2, -1, 1, Q("2.75 mm")),
])
pocket17 = body2.newObject("PartDesign::Pocket", "Pocket016")
pocket17.Profile = sketch22
pocket17.Length = 2
doc.recompute()

chamfer3 = body2.newObject("PartDesign::Chamfer", "Chamfer002")
chamfer3.Base = (pocket17, edges_at(pocket17, [(13.445, 28.5, -26)]))
chamfer3.Size = 7
doc.recompute()

chamfer4 = body2.newObject("PartDesign::Chamfer", "Chamfer003")
chamfer4.Base = (chamfer3, edges_at(chamfer3, [
    (13.445, -12.7, -13),
    (-4.278, -12.7, -26),
    (-4.278, -12.7, 0),
    (-22, -12.7, -13),
    (-22, 8.65, 0),
    (13.445, 8.65, 0),
    (13.445, -5.35, -26),
    (-22, 8.65, -26),
    (-22, 30, -13),
]))
chamfer4.Size = 1.5

sketch23 = body2.newObject("Sketcher::SketchObject", "Sketch022")
sketch23.AttachmentSupport = (doc.getObject("XZ_Plane001"), [""])
sketch23.MapMode = "FlatFace"
sketch23.AttachmentOffset = App.Placement(Vector(0, 0, -15), App.Rotation())
sketch23.addGeometry(Part.Circle(Vector(-10, -4, 0), Vector(0, 0, 1), 9), False)
sketch23.addConstraint([
    Sketcher.Constraint("Diameter", 0, Q("17.225248 mm")),
    Sketcher.Constraint("DistanceX", 0, 3, -1, 1, Q("10.414225 mm")),
    Sketcher.Constraint("DistanceY", 0, 3, -1, 1, Q("4.015364 mm")),
])
pocket18 = body2.newObject("PartDesign::Pocket", "Pocket017")
pocket18.Profile = sketch23
pocket18.Length = 12

sketch24 = body2.newObject("Sketcher::SketchObject", "Sketch023")
sketch24.AttachmentSupport = (doc.getObject("XY_Plane001"), [""])
sketch24.MapMode = "FlatFace"
sketch24.addGeometry(Part.Circle(Vector(0, 4, 0), Vector(0, 0, 1), 3.5), False)
sketch24.addConstraint([
    Sketcher.Constraint("PointOnObject", 0, 3, -2),
    Sketcher.Constraint("Diameter", 0, Q("7 mm")),
    Sketcher.Constraint("DistanceY", -1, 1, 0, 3, Q("4.009526 mm")),
])
pocket19 = body2.newObject("PartDesign::Pocket", "Pocket018")
pocket19.Profile = sketch24
pocket19.Length = 3

sketch25 = body2.newObject("Sketcher::SketchObject", "Sketch024")
sketch25.AttachmentSupport = (doc.getObject("XY_Plane001"), [""])
sketch25.MapMode = "FlatFace"
sketch25.AttachmentOffset = App.Placement(Vector(0, 0, -3), App.Rotation())
sketch25.addGeometry(Part.Circle(Vector(0, 3.9, 0), Vector(0, 0, 1), 2.1), False)
sketch25.addConstraint([
    Sketcher.Constraint("PointOnObject", 0, 3, -2),
    Sketcher.Constraint("Diameter", 0, Q("4.153706 mm")),
    Sketcher.Constraint("DistanceY", -1, 1, 0, 3, Q("3.872298 mm")),
])
pad6 = body2.newObject("PartDesign::Pad", "Pad005")
pad6.Profile = sketch25
pad6.Length = 0.3
pad6.Reversed = True

doc.recompute()
